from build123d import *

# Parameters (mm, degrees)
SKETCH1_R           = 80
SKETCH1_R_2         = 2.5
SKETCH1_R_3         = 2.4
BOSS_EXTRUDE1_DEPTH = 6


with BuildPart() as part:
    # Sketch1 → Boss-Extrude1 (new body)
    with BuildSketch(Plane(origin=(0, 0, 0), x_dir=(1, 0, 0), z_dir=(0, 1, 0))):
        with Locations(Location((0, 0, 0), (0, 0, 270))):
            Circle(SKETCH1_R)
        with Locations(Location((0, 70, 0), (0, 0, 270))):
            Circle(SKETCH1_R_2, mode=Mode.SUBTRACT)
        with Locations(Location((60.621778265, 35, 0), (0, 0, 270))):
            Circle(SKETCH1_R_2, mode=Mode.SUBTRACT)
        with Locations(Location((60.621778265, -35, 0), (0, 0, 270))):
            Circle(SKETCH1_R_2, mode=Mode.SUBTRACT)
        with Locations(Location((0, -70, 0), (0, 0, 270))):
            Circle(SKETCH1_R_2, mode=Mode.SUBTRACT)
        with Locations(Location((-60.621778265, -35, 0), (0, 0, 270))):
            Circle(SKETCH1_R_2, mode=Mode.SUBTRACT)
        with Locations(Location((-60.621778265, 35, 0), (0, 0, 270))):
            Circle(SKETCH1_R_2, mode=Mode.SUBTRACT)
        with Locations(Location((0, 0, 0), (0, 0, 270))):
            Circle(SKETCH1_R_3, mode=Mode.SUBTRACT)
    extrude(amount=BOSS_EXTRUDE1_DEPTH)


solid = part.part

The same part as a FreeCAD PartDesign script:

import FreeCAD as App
import Part
import Sketcher

doc = App.newDocument("Part")
body = doc.addObject("PartDesign::Body", "Body")

sketch1 = body.newObject("Sketcher::SketchObject", "Sketch")
sketch1.AttachmentSupport = (doc.getObject("XZ_Plane"), [""])
sketch1.MapMode = "FlatFace"
sketch1.addGeometry([
    Part.Circle(App.Vector(0, 0, 0), App.Vector(0, 0, 1), 80),
    Part.Circle(App.Vector(-60.621778, -35, 0), App.Vector(0, 0, 1), 2.5),
    Part.Circle(App.Vector(0, -70, 0), App.Vector(0, 0, 1), 2.5),
    Part.Circle(App.Vector(-60.621778, 35, 0), App.Vector(0, 0, 1), 2.5),
    Part.Circle(App.Vector(0, 0, 0), App.Vector(0, 0, 1), 2.4),
    Part.Circle(App.Vector(60.621778, -35, 0), App.Vector(0, 0, 1), 2.5),
    Part.Circle(App.Vector(0, 70, 0), App.Vector(0, 0, 1), 2.5),
    Part.Circle(App.Vector(60.621778, 35, 0), App.Vector(0, 0, 1), 2.5),
], False)
sketch1.addConstraint([
    Sketcher.Constraint("Coincident", 0, 3, -1, 1),
    Sketcher.Constraint("Coincident", 4, 3, -1, 1),
    Sketcher.Constraint("Equal", 1, 2),
    Sketcher.Constraint("Equal", 2, 3),
    Sketcher.Constraint("Equal", 3, 5),
    Sketcher.Constraint("Equal", 5, 6),
    Sketcher.Constraint("Equal", 6, 7),
    Sketcher.Constraint("Symmetric", 3, 3, 5, 3, -1, 1),
    Sketcher.Constraint("Symmetric", 2, 3, 6, 3, -1, 1),
    Sketcher.Constraint("Symmetric", 1, 3, 7, 3, -1, 1),
    Sketcher.Constraint("Symmetric", 1, 3, 5, 3, -2),
    Sketcher.Constraint("PointOnObject", 2, 3, -2),
    Sketcher.Constraint("Diameter", 0, 160.0),
    Sketcher.Constraint("Diameter", 1, 5.0),
    Sketcher.Constraint("Diameter", 4, 4.8),
    Sketcher.Constraint("DistanceY", 1, 3, -1, 1, 35.0),
    Sketcher.Constraint("DistanceY", 2, 3, -1, 1, 70.0),
    Sketcher.Constraint("DistanceX", 1, 3, -1, 1, 60.621778),
])
pad1 = body.newObject("PartDesign::Pad", "Pad")
pad1.Profile = sketch1
pad1.Length = 6
pad1.Reversed = True

doc.recompute()
